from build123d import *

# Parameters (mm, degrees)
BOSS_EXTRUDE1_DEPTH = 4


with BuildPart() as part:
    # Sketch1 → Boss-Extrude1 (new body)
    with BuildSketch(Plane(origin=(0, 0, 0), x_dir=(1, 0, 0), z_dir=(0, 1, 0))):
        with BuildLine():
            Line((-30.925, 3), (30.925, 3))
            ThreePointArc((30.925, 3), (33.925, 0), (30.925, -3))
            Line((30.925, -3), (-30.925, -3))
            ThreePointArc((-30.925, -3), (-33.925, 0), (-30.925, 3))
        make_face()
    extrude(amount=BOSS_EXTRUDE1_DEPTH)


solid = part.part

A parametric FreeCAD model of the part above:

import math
import FreeCAD as App
import Part
import Sketcher

V = App.Vector
Q = App.Units.Quantity

doc = App.newDocument("Part")
body = doc.addObject("PartDesign::Body", "Body")

sketch1 = doc.addObject("Sketcher::SketchObject", "Sketch")
body.addObject(sketch1)
sketch1.AttachmentSupport = (doc.XZ_Plane, [""])
sketch1.MapMode = "FlatFace"
sketch1.addGeometry([
    Part.LineSegment(V(30.9, -3, 0), V(-30.9, -3, 0)),
    Part.ArcOfCircle(Part.Circle(V(-30.9, 0, 0), V(0, 0, 1), 3), math.radians(90), math.radians(270)),
    Part.LineSegment(V(-30.9, 3, 0), V(30.9, 3, 0)),
    Part.ArcOfCircle(Part.Circle(V(30.9, 0, 0), V(0, 0, 1), 3), math.radians(-90), math.radians(90)),
], False)
sketch1.addConstraint([
    Sketcher.Constraint("Tangent", 0, 2, 1, 2),
    Sketcher.Constraint("Tangent", 1, 1, 2, 1),
    Sketcher.Constraint("Tangent", 2, 2, 3, 2),
    Sketcher.Constraint("Tangent", 3, 1, 0, 1),
    Sketcher.Constraint("Horizontal", 0),
    Sketcher.Constraint("Horizontal", 2),
    Sketcher.Constraint("Symmetric", 1, 3, 3, 3, -1, 1),
    Sketcher.Constraint("Radius", 1, Q("3 mm")),
    Sketcher.Constraint("DistanceX", 0, 2, 0, 1, Q("61.85 mm")),
])
pad1 = doc.addObject("PartDesign::Pad", "Pad")
body.addObject(pad1)
pad1.Profile = sketch1
pad1.Length = 4
pad1.Reversed = True

doc.recompute()
